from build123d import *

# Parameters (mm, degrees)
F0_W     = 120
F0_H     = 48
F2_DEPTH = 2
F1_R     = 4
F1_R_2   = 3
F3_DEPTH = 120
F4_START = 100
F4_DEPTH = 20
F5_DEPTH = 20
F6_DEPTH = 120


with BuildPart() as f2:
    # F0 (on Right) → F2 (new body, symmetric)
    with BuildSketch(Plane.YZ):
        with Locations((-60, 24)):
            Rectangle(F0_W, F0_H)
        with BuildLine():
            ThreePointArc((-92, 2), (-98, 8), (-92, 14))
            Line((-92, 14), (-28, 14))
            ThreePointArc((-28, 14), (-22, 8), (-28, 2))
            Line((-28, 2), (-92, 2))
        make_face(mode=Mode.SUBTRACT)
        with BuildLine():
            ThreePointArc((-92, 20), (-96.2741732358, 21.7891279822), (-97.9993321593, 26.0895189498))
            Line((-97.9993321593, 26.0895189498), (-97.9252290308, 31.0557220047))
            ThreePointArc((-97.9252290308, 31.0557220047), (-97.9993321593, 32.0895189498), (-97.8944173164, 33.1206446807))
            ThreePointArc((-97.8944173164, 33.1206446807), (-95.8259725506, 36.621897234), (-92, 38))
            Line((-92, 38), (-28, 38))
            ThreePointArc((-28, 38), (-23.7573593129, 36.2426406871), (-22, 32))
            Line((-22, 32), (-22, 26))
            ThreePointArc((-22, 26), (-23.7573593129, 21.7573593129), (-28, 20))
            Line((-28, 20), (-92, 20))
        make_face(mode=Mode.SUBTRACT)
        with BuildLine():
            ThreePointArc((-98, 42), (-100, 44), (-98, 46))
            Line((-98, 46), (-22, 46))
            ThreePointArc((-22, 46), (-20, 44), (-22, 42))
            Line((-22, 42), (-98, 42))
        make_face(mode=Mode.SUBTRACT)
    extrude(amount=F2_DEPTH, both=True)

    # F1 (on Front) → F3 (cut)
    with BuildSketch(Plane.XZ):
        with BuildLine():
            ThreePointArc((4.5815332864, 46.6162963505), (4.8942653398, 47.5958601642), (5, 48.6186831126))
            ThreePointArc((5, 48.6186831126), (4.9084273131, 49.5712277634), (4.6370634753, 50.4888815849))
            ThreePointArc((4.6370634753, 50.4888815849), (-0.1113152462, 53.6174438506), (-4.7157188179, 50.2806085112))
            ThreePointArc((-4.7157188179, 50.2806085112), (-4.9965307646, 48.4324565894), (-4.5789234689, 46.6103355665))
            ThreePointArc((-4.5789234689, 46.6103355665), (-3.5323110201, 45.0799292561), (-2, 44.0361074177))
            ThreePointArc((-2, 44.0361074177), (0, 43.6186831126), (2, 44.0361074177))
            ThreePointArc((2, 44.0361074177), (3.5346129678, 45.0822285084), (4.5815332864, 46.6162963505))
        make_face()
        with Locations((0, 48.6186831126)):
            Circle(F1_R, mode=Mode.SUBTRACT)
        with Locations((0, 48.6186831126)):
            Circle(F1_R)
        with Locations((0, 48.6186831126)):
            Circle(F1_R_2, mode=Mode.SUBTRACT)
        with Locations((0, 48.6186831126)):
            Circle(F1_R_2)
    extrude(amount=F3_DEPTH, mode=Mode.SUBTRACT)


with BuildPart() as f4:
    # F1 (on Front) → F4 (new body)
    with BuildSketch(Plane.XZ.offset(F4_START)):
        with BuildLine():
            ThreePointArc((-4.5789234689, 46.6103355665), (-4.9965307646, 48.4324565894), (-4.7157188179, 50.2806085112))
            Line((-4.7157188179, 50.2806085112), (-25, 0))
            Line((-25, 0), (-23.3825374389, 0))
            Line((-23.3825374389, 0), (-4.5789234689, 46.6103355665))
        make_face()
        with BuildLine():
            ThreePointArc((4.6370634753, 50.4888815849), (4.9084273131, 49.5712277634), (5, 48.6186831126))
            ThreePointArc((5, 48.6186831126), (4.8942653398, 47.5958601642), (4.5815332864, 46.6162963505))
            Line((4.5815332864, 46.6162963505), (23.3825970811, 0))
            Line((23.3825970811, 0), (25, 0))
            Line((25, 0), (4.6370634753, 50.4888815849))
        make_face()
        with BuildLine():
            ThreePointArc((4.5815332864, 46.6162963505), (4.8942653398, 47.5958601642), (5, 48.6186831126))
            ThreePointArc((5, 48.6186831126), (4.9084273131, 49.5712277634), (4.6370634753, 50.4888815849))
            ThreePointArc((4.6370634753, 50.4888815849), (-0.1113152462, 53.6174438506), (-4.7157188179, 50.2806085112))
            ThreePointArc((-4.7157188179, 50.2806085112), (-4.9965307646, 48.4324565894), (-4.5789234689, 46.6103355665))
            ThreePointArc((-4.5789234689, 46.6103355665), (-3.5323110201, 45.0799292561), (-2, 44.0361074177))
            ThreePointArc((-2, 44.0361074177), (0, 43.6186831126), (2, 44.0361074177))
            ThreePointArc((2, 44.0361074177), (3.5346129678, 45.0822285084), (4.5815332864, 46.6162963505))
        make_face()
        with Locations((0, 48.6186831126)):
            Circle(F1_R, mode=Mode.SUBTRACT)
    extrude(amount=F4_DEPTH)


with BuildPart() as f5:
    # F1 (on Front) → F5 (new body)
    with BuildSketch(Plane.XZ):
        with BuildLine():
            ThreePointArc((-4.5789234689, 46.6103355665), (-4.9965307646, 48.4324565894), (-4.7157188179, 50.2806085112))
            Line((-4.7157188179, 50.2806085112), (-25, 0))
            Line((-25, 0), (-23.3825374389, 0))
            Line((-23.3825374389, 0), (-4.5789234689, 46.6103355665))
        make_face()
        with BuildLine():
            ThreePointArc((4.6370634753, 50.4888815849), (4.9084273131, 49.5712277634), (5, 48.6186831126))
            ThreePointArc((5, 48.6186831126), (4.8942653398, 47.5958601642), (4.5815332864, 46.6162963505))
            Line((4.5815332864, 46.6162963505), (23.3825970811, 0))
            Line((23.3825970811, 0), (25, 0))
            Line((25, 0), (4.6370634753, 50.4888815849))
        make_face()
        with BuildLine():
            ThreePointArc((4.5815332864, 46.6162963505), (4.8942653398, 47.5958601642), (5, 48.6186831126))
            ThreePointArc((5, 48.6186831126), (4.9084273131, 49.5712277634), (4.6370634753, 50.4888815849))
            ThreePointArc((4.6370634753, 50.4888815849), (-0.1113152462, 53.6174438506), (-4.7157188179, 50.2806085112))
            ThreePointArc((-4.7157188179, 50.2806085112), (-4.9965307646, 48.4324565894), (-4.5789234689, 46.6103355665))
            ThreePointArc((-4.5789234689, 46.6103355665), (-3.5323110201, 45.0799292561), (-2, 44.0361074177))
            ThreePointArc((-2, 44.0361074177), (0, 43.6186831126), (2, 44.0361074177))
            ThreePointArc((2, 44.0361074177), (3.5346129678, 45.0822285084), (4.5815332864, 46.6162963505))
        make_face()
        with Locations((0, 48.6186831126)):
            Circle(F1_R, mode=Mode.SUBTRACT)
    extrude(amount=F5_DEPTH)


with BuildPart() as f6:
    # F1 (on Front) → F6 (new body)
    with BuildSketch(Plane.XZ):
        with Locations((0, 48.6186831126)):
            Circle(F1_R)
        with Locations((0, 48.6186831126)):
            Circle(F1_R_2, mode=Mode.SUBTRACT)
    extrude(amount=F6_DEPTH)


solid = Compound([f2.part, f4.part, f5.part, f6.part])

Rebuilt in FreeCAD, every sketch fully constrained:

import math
import FreeCAD as App
import Part
import Sketcher
Q = App.Units.Quantity

doc = App.newDocument("Part")
body = doc.addObject("PartDesign::Body", "Body")

# Sketch on YZ plane
sketch1 = doc.addObject("Sketcher::SketchObject", "Sketch")
body.addObject(sketch1)
sketch1.AttachmentSupport = (doc.YZ_Plane, [""])
sketch1.MapMode = "FlatFace"
sketch1.addGeometry([
    Part.LineSegment(App.Vector(-120, 48, 0), App.Vector(-120, 0, 0)),  # 0
    Part.LineSegment(App.Vector(-120, 0, 0), App.Vector(0, 0, 0)),  # 1
    Part.LineSegment(App.Vector(0, 0, 0), App.Vector(0, 48, 0)),  # 2
    Part.LineSegment(App.Vector(0, 48, 0), App.Vector(-120, 48, 0)),  # 3
    Part.LineSegment(App.Vector(-28, 2, 0), App.Vector(-92, 2, 0)),  # 4
    Part.ArcOfCircle(Part.Circle(App.Vector(-92, 8, 0), App.Vector(0, 0, 1), 6), math.radians(90), math.radians(270)),  # 5
    Part.LineSegment(App.Vector(-92, 14, 0), App.Vector(-28, 14, 0)),  # 6
    Part.ArcOfCircle(Part.Circle(App.Vector(-28, 8, 0), App.Vector(0, 0, 1), 6), math.radians(-90), math.radians(90)),  # 7
    Part.LineSegment(App.Vector(-28, 20, 0), App.Vector(-92, 20, 0)),  # 8
    Part.ArcOfCircle(Part.Circle(App.Vector(-92, 26, 0), App.Vector(0, 0, 1), 6), math.radians(179.145125), math.radians(270)),  # 9
    Part.LineSegment(App.Vector(-97.999332, 26.089519, 0), App.Vector(-97.925229, 31.055722, 0)),  # 10
    Part.ArcOfCircle(Part.Circle(App.Vector(-92, 32, 0), App.Vector(0, 0, 1), 6), math.radians(169.235415), math.radians(189.054835)),  # 11
    Part.ArcOfCircle(Part.Circle(App.Vector(-92, 32, 0), App.Vector(0, 0, 1), 6), math.radians(90), math.radians(169.235415)),  # 12
    Part.LineSegment(App.Vector(-92, 38, 0), App.Vector(-28, 38, 0)),  # 13
    Part.ArcOfCircle(Part.Circle(App.Vector(-28, 32, 0), App.Vector(0, 0, 1), 6), math.radians(0), math.radians(90)),  # 14
    Part.LineSegment(App.Vector(-22, 32, 0), App.Vector(-22, 26, 0)),  # 15
    Part.ArcOfCircle(Part.Circle(App.Vector(-28, 26, 0), App.Vector(0, 0, 1), 6), math.radians(-90), math.radians(0)),  # 16
    Part.LineSegment(App.Vector(-22, 42, 0), App.Vector(-98, 42, 0)),  # 17
    Part.ArcOfCircle(Part.Circle(App.Vector(-98, 44, 0), App.Vector(0, 0, 1), 2), math.radians(90), math.radians(270)),  # 18
    Part.LineSegment(App.Vector(-98, 46, 0), App.Vector(-22, 46, 0)),  # 19
    Part.ArcOfCircle(Part.Circle(App.Vector(-22, 44, 0), App.Vector(0, 0, 1), 2), math.radians(-90), math.radians(90)),  # 20
], False)
sketch1.addConstraint([
    Sketcher.Constraint("Coincident", 0, 2, 1, 1),
    Sketcher.Constraint("Coincident", 1, 2, 2, 1),
    Sketcher.Constraint("Coincident", 2, 2, 3, 1),
    Sketcher.Constraint("Coincident", 3, 2, 0, 1),
    Sketcher.Constraint("Tangent", 4, 2, 5, 2),
    Sketcher.Constraint("Tangent", 5, 1, 6, 1),
    Sketcher.Constraint("Tangent", 6, 2, 7, 2),
    Sketcher.Constraint("Tangent", 7, 1, 4, 1),
    Sketcher.Constraint("Tangent", 8, 2, 9, 2),
    Sketcher.Constraint("Tangent", 9, 1, 10, 1),
    Sketcher.Constraint("Coincident", 10, 2, 11, 2),
    Sketcher.Constraint("Tangent", 11, 1, 12, 2),
    Sketcher.Constraint("Tangent", 12, 1, 13, 1),
    Sketcher.Constraint("Tangent", 13, 2, 14, 2),
    Sketcher.Constraint("Tangent", 14, 1, 15, 1),
    Sketcher.Constraint("Tangent", 15, 2, 16, 2),
    Sketcher.Constraint("Tangent", 16, 1, 8, 1),
    Sketcher.Constraint("Tangent", 17, 2, 18, 2),
    Sketcher.Constraint("Tangent", 18, 1, 19, 1),
    Sketcher.Constraint("Tangent", 19, 2, 20, 2),
    Sketcher.Constraint("Tangent", 20, 1, 17, 1),
    Sketcher.Constraint("Vertical", 0),
    Sketcher.Constraint("Horizontal", 1),
    Sketcher.Constraint("Vertical", 2),
    Sketcher.Constraint("Horizontal", 3),
    Sketcher.Constraint("Horizontal", 4),
    Sketcher.Constraint("Horizontal", 6),
    Sketcher.Constraint("Horizontal", 8),
    Sketcher.Constraint("Horizontal", 13),
    Sketcher.Constraint("Vertical", 15),
    Sketcher.Constraint("Horizontal", 17),
    Sketcher.Constraint("Horizontal", 19),
    Sketcher.Constraint("Coincident", 1, 2, -1, 1),
    Sketcher.Constraint("Equal", 7, 9),
    Sketcher.Constraint("Equal", 9, 11),
    Sketcher.Constraint("Equal", 11, 12),
    Sketcher.Constraint("Equal", 12, 14),
    Sketcher.Constraint("Equal", 14, 16),
    Sketcher.Constraint("Vertical", 5, 3, 9, 3),
    Sketcher.Constraint("Vertical", 9, 3, 11, 3),
    Sketcher.Constraint("Vertical", 7, 3, 14, 3),
    Sketcher.Constraint("Vertical", 20, 3, 14, 1),
    Sketcher.Constraint("Radius", 5, Q("6 mm")),
    Sketcher.Constraint("Radius", 18, Q("2 mm")),
    Sketcher.Constraint("DistanceX", 1, 1, 1, 2, Q("120 mm")),
    Sketcher.Constraint("DistanceX", 4, 2, 4, 1, Q("64 mm")),
    Sketcher.Constraint("DistanceX", 17, 2, 17, 1, Q("76 mm")),
    Sketcher.Constraint("DistanceY", 0, 2, 0, 1, Q("48 mm")),
    Sketcher.Constraint("DistanceY", 15, 2, 15, 1, Q("6 mm")),
    Sketcher.Constraint("DistanceX", 5, 3, -1, 1, Q("92 mm")),
    Sketcher.Constraint("DistanceY", -1, 1, 5, 3, Q("8 mm")),
    Sketcher.Constraint("DistanceY", -1, 1, 9, 3, Q("26 mm")),
    Sketcher.Constraint("DistanceY", -1, 1, 18, 3, Q("44 mm")),
    Sketcher.Constraint("DistanceY", -1, 1, 9, 1, Q("26.089519 mm")),
    Sketcher.Constraint("DistanceX", 10, 2, 11, 1, Q("0.030812 mm")),
])
pad1 = doc.addObject("PartDesign::Pad", "Pad")
body.addObject(pad1)
pad1.Profile = sketch1
pad1.Length = 4
pad1.Midplane = True

# Sketch on XZ plane
sketch2 = doc.addObject("Sketcher::SketchObject", "Sketch001")
body.addObject(sketch2)
sketch2.AttachmentSupport = (doc.XZ_Plane, [""])
sketch2.MapMode = "FlatFace"
sketch2.addGeometry([
    Part.ArcOfCircle(Part.Circle(App.Vector(0, 48.618683, 0), App.Vector(0, 0, 1), 5), math.radians(-23.608023), math.radians(0)),  # 0
    Part.ArcOfCircle(Part.Circle(App.Vector(0, 48.618683, 0), App.Vector(0, 0, 1), 5), math.radians(0), math.radians(21.964973)),  # 1
    Part.ArcOfCircle(Part.Circle(App.Vector(0, 48.618683, 0), App.Vector(0, 0, 1), 5), math.radians(21.964973), math.radians(160.586396)),  # 2
    Part.ArcOfCircle(Part.Circle(App.Vector(0, 48.618683, 0), App.Vector(0, 0, 1), 5), math.radians(160.586396), math.radians(203.682589)),  # 3
    Part.ArcOfCircle(Part.Circle(App.Vector(0, 48.618683, 0), App.Vector(0, 0, 1), 5), math.radians(-156.317411), math.radians(-113.578178)),  # 4
    Part.ArcOfCircle(Part.Circle(App.Vector(0, 48.618683, 0), App.Vector(0, 0, 1), 5), math.radians(-113.578178), math.radians(-66.421822)),  # 5
    Part.ArcOfCircle(Part.Circle(App.Vector(0, 48.618683, 0), App.Vector(0, 0, 1), 5), math.radians(-66.421822), math.radians(-23.608023)),  # 6
], False)
sketch2.addConstraint([
    Sketcher.Constraint("Tangent", 0, 2, 1, 1),
    Sketcher.Constraint("Tangent", 1, 2, 2, 1),
    Sketcher.Constraint("Tangent", 2, 2, 3, 1),
    Sketcher.Constraint("Tangent", 3, 2, 4, 1),
    Sketcher.Constraint("Tangent", 4, 2, 5, 1),
    Sketcher.Constraint("Tangent", 5, 2, 6, 1),
    Sketcher.Constraint("Tangent", 6, 2, 0, 1),
    Sketcher.Constraint("Coincident", 2, 3, 0, 3),
    Sketcher.Constraint("Coincident", 4, 3, 0, 3),
    Sketcher.Constraint("Symmetric", 4, 2, 5, 2, -2),
    Sketcher.Constraint("Horizontal", 6, 3, 0, 2),
    Sketcher.Constraint("Radius", 0, Q("5 mm")),
    Sketcher.Constraint("DistanceX", 4, 2, -1, 1, Q("2 mm")),
    Sketcher.Constraint("DistanceY", 0, 2, 1, 2, Q("1.870198 mm")),
    Sketcher.Constraint("DistanceY", -1, 1, 1, 2, Q("50.488882 mm")),
    Sketcher.Constraint("DistanceX", 2, 2, -1, 1, Q("4.715719 mm")),
    Sketcher.Constraint("DistanceY", 4, 2, 3, 2, Q("2.574228 mm")),
    Sketcher.Constraint("DistanceY", 5, 2, 6, 2, Q("2.580189 mm")),
])
pocket1 = doc.addObject("PartDesign::Pocket", "Pocket")
body.addObject(pocket1)
pocket1.Profile = sketch2
pocket1.Length = 120
pocket1.Reversed = True
body2 = doc.addObject("PartDesign::Body", "Body001")

# Sketch on XZ plane
sketch3 = doc.addObject("Sketcher::SketchObject", "Sketch002")
body2.addObject(sketch3)
sketch3.AttachmentSupport = (doc.getObject("XZ_Plane001"), [""])
sketch3.MapMode = "FlatFace"
sketch3.AttachmentOffset = App.Placement(App.Vector(0, 0, 100), App.Rotation())
sketch3.addGeometry([
    Part.LineSegment(App.Vector(-4.715719, 50.280609, 0), App.Vector(-25, 0, 0)),  # 0
    Part.LineSegment(App.Vector(-25, 0, 0), App.Vector(-23.382537, 0, 0)),  # 1
    Part.LineSegment(App.Vector(-23.382537, 0, 0), App.Vector(-4.578923, 46.610336, 0)),  # 2
    Part.ArcOfCircle(Part.Circle(App.Vector(0, 48.618683, 0), App.Vector(0, 0, 1), 5), math.radians(-156.317411), math.radians(-113.578178)),  # 3
    Part.ArcOfCircle(Part.Circle(App.Vector(0, 48.618683, 0), App.Vector(0, 0, 1), 5), math.radians(-113.578178), math.radians(-66.421822)),  # 4
    Part.ArcOfCircle(Part.Circle(App.Vector(0, 48.618683, 0), App.Vector(0, 0, 1), 5), math.radians(-66.421822), math.radians(-23.608023)),  # 5
    Part.LineSegment(App.Vector(4.581533, 46.616296, 0), App.Vector(23.382597, 0, 0)),  # 6
    Part.LineSegment(App.Vector(23.382597, 0, 0), App.Vector(25, 0, 0)),  # 7
    Part.LineSegment(App.Vector(25, 0, 0), App.Vector(4.637063, 50.488882, 0)),  # 8
    Part.ArcOfCircle(Part.Circle(App.Vector(0, 48.618683, 0), App.Vector(0, 0, 1), 5), math.radians(21.964973), math.radians(160.586396)),  # 9
    Part.Circle(App.Vector(0, 48.618683, 0), App.Vector(0, 0, 1), 4),  # 10
], False)
sketch3.addConstraint([
    Sketcher.Constraint("Coincident", 0, 2, 1, 1),
    Sketcher.Constraint("Coincident", 1, 2, 2, 1),
    Sketcher.Constraint("Coincident", 2, 2, 3, 1),
    Sketcher.Constraint("Tangent", 3, 2, 4, 1),
    Sketcher.Constraint("Tangent", 4, 2, 5, 1),
    Sketcher.Constraint("Coincident", 5, 2, 6, 1),
    Sketcher.Constraint("Coincident", 6, 2, 7, 1),
    Sketcher.Constraint("Coincident", 7, 2, 8, 1),
    Sketcher.Constraint("Tangent", 8, 2, 9, 1),
    Sketcher.Constraint("Coincident", 9, 2, 0, 1),
    Sketcher.Constraint("Horizontal", 1),
    Sketcher.Constraint("Horizontal", 7),
    Sketcher.Constraint("Coincident", 5, 3, 3, 3),
    Sketcher.Constraint("Coincident", 9, 3, 3, 3),
    Sketcher.Constraint("Coincident", 10, 3, 3, 3),
    Sketcher.Constraint("Equal", 5, 9),
    Sketcher.Constraint("Symmetric", 0, 2, 7, 2, -1, 1),
    Sketcher.Constraint("Symmetric", 3, 2, 4, 2, -2),
    Sketcher.Constraint("PointOnObject", 0, 2, -1),
    Sketcher.Constraint("Parallel", 0, 2),
    Sketcher.Constraint("Parallel", 6, 8),
    Sketcher.Constraint("Diameter", 10, Q("8 mm")),
    Sketcher.Constraint("Radius", 3, Q("5 mm")),
    Sketcher.Constraint("DistanceX", 0, 2, -1, 1, Q("25 mm")),
    Sketcher.Constraint("DistanceX", 3, 2, -1, 1, Q("2 mm")),
    Sketcher.Constraint("Distance", 0, Q("54.218001 mm")),
    Sketcher.Constraint("DistanceY", 3, 3, 8, 2, Q("1.870198 mm")),
    Sketcher.Constraint("Distance", 6, Q("50.264889 mm")),
    Sketcher.Constraint("DistanceX", 1, 1, 1, 2, Q("1.617463 mm")),
])
pad2 = doc.addObject("PartDesign::Pad", "Pad001")
body2.addObject(pad2)
pad2.Profile = sketch3
pad2.Length = 20
body3 = doc.addObject("PartDesign::Body", "Body002")

# Sketch on XZ plane
sketch4 = doc.addObject("Sketcher::SketchObject", "Sketch003")
body3.addObject(sketch4)
sketch4.AttachmentSupport = (doc.getObject("XZ_Plane002"), [""])
sketch4.MapMode = "FlatFace"
sketch4.addGeometry([
    Part.LineSegment(App.Vector(-4.715719, 50.280609, 0), App.Vector(-25, 0, 0)),  # 0
    Part.LineSegment(App.Vector(-25, 0, 0), App.Vector(-23.382537, 0, 0)),  # 1
    Part.LineSegment(App.Vector(-23.382537, 0, 0), App.Vector(-4.578923, 46.610336, 0)),  # 2
    Part.ArcOfCircle(Part.Circle(App.Vector(0, 48.618683, 0), App.Vector(0, 0, 1), 5), math.radians(-156.317411), math.radians(-113.578178)),  # 3
    Part.ArcOfCircle(Part.Circle(App.Vector(0, 48.618683, 0), App.Vector(0, 0, 1), 5), math.radians(-113.578178), math.radians(-66.421822)),  # 4
    Part.ArcOfCircle(Part.Circle(App.Vector(0, 48.618683, 0), App.Vector(0, 0, 1), 5), math.radians(-66.421822), math.radians(-23.608023)),  # 5
    Part.LineSegment(App.Vector(4.581533, 46.616296, 0), App.Vector(23.382597, 0, 0)),  # 6
    Part.LineSegment(App.Vector(23.382597, 0, 0), App.Vector(25, 0, 0)),  # 7
    Part.LineSegment(App.Vector(25, 0, 0), App.Vector(4.637063, 50.488882, 0)),  # 8
    Part.ArcOfCircle(Part.Circle(App.Vector(0, 48.618683, 0), App.Vector(0, 0, 1), 5), math.radians(21.964973), math.radians(160.586396)),  # 9
    Part.Circle(App.Vector(0, 48.618683, 0), App.Vector(0, 0, 1), 4),  # 10
], False)
sketch4.addConstraint([
    Sketcher.Constraint("Coincident", 0, 2, 1, 1),
    Sketcher.Constraint("Coincident", 1, 2, 2, 1),
    Sketcher.Constraint("Coincident", 2, 2, 3, 1),
    Sketcher.Constraint("Tangent", 3, 2, 4, 1),
    Sketcher.Constraint("Tangent", 4, 2, 5, 1),
    Sketcher.Constraint("Coincident", 5, 2, 6, 1),
    Sketcher.Constraint("Coincident", 6, 2, 7, 1),
    Sketcher.Constraint("Coincident", 7, 2, 8, 1),
    Sketcher.Constraint("Tangent", 8, 2, 9, 1),
    Sketcher.Constraint("Coincident", 9, 2, 0, 1),
    Sketcher.Constraint("Horizontal", 1),
    Sketcher.Constraint("Horizontal", 7),
    Sketcher.Constraint("Coincident", 5, 3, 3, 3),
    Sketcher.Constraint("Coincident", 9, 3, 3, 3),
    Sketcher.Constraint("Coincident", 10, 3, 3, 3),
    Sketcher.Constraint("Equal", 5, 9),
    Sketcher.Constraint("Symmetric", 0, 2, 7, 2, -1, 1),
    Sketcher.Constraint("Symmetric", 3, 2, 4, 2, -2),
    Sketcher.Constraint("PointOnObject", 0, 2, -1),
    Sketcher.Constraint("Parallel", 0, 2),
    Sketcher.Constraint("Parallel", 6, 8),
    Sketcher.Constraint("Diameter", 10, Q("8 mm")),
    Sketcher.Constraint("Radius", 3, Q("5 mm")),
    Sketcher.Constraint("DistanceX", 0, 2, -1, 1, Q("25 mm")),
    Sketcher.Constraint("DistanceX", 3, 2, -1, 1, Q("2 mm")),
    Sketcher.Constraint("Distance", 0, Q("54.218001 mm")),
    Sketcher.Constraint("DistanceY", 3, 3, 8, 2, Q("1.870198 mm")),
    Sketcher.Constraint("Distance", 6, Q("50.264889 mm")),
    Sketcher.Constraint("DistanceX", 1, 1, 1, 2, Q("1.617463 mm")),
])
pad3 = doc.addObject("PartDesign::Pad", "Pad002")
body3.addObject(pad3)
pad3.Profile = sketch4
pad3.Length = 20
body4 = doc.addObject("PartDesign::Body", "Body003")

# Sketch on XZ plane
sketch5 = doc.addObject("Sketcher::SketchObject", "Sketch004")
body4.addObject(sketch5)
sketch5.AttachmentSupport = (doc.getObject("XZ_Plane003"), [""])
sketch5.MapMode = "FlatFace"
sketch5.addGeometry([
    Part.Circle(App.Vector(0, 48.618683, 0), App.Vector(0, 0, 1), 4),
    Part.Circle(App.Vector(0, 48.618683, 0), App.Vector(0, 0, 1), 3),
], False)
sketch5.addConstraint([
    Sketcher.Constraint("Coincident", 1, 3, 0, 3),
    Sketcher.Constraint("PointOnObject", 0, 3, -2),
    Sketcher.Constraint("Diameter", 0, Q("8 mm")),
    Sketcher.Constraint("Diameter", 1, Q("6 mm")),
    Sketcher.Constraint("DistanceY", -1, 1, 0, 3, Q("48.618683 mm")),
])
pad4 = doc.addObject("PartDesign::Pad", "Pad003")
body4.addObject(pad4)
pad4.Profile = sketch5
pad4.Length = 120

doc.recompute()
